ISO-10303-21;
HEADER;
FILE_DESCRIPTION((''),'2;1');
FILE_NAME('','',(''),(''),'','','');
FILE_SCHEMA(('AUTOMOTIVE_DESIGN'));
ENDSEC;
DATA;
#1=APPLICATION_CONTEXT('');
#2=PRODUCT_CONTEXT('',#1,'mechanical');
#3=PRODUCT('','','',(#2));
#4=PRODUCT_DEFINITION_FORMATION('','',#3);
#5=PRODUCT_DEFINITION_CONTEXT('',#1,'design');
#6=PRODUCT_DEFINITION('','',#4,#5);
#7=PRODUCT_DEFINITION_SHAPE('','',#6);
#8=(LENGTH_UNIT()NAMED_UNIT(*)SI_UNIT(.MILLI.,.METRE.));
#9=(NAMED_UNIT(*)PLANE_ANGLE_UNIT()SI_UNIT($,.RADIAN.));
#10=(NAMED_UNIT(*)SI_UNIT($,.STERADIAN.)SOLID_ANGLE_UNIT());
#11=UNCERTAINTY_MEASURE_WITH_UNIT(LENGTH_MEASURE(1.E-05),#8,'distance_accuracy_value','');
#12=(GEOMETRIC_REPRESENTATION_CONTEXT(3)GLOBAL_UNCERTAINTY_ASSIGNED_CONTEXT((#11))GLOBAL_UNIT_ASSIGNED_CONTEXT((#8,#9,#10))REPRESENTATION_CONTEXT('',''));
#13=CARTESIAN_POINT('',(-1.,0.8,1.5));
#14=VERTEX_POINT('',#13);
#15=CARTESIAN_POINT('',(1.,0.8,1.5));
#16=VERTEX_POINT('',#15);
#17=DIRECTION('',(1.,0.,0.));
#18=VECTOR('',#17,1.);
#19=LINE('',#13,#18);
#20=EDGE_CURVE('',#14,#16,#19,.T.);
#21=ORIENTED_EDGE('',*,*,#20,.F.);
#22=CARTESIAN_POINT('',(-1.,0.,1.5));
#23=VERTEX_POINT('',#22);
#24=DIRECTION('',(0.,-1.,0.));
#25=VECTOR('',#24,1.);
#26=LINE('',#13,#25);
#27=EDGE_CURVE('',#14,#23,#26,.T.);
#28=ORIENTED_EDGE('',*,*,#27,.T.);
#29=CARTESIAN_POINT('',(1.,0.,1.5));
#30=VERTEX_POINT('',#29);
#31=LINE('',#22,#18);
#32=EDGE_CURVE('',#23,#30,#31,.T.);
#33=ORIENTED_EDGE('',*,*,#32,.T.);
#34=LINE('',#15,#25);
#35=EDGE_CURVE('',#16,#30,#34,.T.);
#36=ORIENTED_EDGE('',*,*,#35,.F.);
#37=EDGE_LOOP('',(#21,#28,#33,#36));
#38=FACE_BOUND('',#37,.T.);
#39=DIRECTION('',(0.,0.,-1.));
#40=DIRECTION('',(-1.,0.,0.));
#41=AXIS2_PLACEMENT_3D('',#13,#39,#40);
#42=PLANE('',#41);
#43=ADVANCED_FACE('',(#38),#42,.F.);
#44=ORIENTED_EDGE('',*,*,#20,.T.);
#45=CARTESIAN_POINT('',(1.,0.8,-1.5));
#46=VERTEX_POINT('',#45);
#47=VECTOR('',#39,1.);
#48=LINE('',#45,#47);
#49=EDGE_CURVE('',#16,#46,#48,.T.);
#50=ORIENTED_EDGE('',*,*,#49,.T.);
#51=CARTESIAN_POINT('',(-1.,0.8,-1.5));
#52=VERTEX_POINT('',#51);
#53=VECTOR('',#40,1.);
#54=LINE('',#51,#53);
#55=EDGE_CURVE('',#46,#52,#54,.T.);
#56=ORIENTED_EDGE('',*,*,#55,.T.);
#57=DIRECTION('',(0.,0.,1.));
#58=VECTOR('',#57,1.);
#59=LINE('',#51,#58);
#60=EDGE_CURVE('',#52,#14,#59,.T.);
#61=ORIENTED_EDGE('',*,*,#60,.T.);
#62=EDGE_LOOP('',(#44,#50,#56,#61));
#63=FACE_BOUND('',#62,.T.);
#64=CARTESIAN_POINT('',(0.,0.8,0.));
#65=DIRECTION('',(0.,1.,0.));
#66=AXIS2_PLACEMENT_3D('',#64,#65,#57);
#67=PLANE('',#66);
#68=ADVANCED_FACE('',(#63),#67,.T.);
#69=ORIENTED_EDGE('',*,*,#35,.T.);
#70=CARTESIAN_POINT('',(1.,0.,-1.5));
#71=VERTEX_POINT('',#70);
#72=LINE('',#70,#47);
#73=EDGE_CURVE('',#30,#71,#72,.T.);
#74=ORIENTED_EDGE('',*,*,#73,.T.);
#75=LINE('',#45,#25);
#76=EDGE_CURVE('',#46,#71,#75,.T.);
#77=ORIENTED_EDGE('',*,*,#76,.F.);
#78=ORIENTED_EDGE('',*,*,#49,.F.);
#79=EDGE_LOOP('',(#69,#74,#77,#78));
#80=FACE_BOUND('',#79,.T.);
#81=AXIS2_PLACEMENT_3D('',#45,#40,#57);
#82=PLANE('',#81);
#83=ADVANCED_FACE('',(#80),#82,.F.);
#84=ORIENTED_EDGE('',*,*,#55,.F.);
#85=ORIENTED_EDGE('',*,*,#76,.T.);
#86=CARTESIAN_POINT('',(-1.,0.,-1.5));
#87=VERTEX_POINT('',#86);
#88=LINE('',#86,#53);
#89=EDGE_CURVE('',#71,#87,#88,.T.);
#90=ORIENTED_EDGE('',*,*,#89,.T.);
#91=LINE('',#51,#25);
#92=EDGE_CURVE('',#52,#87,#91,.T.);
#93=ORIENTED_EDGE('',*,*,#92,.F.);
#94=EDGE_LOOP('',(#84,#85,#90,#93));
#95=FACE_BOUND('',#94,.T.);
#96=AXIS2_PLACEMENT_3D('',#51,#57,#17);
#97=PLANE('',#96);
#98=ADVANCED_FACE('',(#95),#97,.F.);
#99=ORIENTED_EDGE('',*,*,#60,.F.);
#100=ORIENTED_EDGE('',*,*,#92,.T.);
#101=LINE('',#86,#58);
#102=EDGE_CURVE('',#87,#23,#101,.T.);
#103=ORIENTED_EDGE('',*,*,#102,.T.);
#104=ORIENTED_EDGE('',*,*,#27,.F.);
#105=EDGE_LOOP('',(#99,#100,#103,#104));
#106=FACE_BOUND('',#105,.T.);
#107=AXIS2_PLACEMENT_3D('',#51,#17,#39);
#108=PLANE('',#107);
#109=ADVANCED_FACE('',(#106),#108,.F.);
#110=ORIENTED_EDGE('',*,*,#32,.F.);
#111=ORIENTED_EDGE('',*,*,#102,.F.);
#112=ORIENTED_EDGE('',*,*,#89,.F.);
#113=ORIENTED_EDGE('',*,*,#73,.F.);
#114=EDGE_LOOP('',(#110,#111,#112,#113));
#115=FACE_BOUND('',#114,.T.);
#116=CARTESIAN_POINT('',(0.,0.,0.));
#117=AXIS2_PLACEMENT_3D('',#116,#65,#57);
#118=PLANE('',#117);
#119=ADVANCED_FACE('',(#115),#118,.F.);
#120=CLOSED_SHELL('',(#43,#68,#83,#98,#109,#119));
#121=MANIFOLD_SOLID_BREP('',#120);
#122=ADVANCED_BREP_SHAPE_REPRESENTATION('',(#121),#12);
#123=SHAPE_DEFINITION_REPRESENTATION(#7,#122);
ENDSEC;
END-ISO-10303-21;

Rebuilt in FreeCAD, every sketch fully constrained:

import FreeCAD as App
import Part
import Sketcher
Q = App.Units.Quantity

doc = App.newDocument("Part")
body = doc.addObject("PartDesign::Body", "Body")

# Sketch on XZ plane
sketch1 = body.newObject("Sketcher::SketchObject", "Sketch")
sketch1.AttachmentSupport = (doc.getObject("XZ_Plane"), [""])
sketch1.MapMode = "FlatFace"
sketch1.addGeometry([
    Part.LineSegment(App.Vector(-1, -1.5, 0), App.Vector(-1, 1.5, 0)),
    Part.LineSegment(App.Vector(-1, 1.5, 0), App.Vector(1, 1.5, 0)),
    Part.LineSegment(App.Vector(1, 1.5, 0), App.Vector(1, -1.5, 0)),
    Part.LineSegment(App.Vector(1, -1.5, 0), App.Vector(-1, -1.5, 0)),
], False)
sketch1.addConstraint([
    Sketcher.Constraint("Coincident", 0, 2, 1, 1),
    Sketcher.Constraint("Coincident", 1, 2, 2, 1),
    Sketcher.Constraint("Coincident", 2, 2, 3, 1),
    Sketcher.Constraint("Coincident", 3, 2, 0, 1),
    Sketcher.Constraint("Vertical", 0),
    Sketcher.Constraint("Horizontal", 1),
    Sketcher.Constraint("Vertical", 2),
    Sketcher.Constraint("Horizontal", 3),
    Sketcher.Constraint("Symmetric", 0, 2, 2, 2, -1, 1),
    Sketcher.Constraint("DistanceX", 1, 1, 1, 2, Q("2 mm")),
    Sketcher.Constraint("DistanceY", 0, 1, 0, 2, Q("3 mm")),
])
pad1 = body.newObject("PartDesign::Pad", "Pad")
pad1.Profile = sketch1
pad1.Length = 0.8
pad1.Reversed = True

doc.recompute()
